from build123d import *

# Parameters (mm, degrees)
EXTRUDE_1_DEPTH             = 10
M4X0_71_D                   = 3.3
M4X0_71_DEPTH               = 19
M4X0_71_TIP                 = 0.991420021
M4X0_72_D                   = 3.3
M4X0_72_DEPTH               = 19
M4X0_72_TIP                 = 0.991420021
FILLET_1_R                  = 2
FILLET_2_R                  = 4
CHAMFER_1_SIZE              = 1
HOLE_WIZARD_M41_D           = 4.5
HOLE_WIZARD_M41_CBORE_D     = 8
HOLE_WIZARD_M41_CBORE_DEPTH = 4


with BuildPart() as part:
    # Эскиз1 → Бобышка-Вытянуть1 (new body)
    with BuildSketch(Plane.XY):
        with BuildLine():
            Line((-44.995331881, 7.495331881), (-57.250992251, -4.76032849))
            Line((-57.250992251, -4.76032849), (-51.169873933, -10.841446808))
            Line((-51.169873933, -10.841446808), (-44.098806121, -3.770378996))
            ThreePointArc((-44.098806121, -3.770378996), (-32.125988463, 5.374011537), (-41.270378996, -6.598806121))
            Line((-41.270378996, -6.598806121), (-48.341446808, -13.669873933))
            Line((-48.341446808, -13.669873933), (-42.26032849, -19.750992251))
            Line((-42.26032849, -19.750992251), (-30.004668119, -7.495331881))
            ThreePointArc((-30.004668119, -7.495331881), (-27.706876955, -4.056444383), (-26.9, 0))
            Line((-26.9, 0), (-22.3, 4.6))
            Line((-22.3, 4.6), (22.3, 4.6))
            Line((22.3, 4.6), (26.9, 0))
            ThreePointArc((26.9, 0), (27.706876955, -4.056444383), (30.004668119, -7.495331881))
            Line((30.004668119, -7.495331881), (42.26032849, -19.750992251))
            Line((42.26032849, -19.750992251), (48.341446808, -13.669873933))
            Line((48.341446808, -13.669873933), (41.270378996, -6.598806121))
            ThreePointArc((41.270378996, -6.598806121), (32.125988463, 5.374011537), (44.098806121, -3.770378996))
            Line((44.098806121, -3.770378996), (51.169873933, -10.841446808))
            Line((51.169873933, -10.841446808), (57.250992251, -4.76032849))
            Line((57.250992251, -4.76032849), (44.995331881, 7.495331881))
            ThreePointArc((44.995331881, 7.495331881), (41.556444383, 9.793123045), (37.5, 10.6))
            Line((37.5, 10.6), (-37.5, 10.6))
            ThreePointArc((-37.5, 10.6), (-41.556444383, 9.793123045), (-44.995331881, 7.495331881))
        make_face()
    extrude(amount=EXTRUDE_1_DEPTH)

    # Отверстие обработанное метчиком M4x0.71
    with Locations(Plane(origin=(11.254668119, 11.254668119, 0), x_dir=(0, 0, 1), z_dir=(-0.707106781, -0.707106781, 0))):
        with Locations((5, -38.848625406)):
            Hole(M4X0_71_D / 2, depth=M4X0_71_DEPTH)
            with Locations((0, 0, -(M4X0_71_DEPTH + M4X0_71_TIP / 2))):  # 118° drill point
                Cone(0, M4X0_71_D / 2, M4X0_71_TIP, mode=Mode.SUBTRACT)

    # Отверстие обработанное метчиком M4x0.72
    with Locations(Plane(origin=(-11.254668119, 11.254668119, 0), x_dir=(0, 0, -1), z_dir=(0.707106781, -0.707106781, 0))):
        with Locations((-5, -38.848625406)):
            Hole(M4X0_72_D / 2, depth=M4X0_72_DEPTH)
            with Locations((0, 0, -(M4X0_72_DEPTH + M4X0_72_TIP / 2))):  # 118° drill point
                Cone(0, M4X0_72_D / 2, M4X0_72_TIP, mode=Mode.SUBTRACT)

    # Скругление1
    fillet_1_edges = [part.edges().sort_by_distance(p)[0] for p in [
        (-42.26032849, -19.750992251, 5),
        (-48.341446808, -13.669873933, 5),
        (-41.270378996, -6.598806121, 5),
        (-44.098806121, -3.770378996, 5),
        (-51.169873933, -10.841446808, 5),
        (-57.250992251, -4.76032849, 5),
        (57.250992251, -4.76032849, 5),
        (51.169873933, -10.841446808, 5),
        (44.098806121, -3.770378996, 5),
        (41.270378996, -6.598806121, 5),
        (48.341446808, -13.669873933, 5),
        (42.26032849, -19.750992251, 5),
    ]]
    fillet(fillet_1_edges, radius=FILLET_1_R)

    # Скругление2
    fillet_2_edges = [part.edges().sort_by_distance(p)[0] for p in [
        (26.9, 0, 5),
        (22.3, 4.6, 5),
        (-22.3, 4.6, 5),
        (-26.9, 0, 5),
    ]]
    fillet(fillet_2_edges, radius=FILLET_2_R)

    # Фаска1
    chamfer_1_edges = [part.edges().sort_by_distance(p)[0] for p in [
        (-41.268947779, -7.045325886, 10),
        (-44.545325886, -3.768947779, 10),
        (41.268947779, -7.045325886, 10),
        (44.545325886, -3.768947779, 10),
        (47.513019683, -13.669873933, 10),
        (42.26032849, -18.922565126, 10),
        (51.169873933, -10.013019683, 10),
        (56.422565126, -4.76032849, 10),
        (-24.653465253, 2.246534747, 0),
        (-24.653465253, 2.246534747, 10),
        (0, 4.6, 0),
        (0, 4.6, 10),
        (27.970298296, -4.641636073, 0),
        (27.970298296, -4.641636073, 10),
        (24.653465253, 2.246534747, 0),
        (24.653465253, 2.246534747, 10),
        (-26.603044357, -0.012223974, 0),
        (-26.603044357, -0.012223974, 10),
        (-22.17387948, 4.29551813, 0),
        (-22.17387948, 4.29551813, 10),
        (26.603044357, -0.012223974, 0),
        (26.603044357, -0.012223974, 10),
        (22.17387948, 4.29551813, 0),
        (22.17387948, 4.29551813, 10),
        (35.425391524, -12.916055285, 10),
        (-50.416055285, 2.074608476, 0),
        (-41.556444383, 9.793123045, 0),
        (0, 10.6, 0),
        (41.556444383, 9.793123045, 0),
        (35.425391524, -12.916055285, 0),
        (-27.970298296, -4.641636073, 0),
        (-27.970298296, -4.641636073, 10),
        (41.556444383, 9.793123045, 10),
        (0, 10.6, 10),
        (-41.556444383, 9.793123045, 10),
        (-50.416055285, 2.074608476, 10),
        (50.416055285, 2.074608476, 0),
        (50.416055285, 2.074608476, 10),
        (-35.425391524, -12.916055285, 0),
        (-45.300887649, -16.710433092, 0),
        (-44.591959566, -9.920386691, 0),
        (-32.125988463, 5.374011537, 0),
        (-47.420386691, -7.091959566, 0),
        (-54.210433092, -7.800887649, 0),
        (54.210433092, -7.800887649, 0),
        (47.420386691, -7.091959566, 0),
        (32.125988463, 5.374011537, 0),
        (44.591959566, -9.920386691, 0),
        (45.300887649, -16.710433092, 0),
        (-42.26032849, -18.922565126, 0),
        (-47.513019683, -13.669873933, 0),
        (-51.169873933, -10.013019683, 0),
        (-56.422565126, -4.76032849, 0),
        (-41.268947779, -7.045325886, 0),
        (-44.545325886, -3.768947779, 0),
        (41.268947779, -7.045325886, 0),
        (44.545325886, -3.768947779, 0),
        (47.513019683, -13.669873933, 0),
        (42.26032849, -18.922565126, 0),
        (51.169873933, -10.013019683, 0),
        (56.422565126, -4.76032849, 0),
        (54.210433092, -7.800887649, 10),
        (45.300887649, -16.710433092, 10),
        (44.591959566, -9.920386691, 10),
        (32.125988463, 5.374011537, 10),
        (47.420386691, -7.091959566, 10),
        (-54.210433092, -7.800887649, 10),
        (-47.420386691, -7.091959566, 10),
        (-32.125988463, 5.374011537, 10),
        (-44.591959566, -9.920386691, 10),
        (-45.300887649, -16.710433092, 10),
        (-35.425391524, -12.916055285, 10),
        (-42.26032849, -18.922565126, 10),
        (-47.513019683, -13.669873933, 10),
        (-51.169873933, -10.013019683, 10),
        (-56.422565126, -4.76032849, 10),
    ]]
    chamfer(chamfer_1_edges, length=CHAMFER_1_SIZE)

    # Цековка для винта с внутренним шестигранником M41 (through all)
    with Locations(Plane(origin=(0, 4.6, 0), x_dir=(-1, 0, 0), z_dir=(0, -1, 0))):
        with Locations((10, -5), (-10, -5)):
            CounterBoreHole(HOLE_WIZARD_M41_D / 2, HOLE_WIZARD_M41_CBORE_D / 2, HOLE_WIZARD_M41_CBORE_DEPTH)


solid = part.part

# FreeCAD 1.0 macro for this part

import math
import FreeCAD as App
import Part
import Sketcher
Q = App.Units.Quantity


def edges_at(feature, points):
    """Names of the edges that pass closest to the given points."""
    edges = feature.Shape.Edges
    near = lambda p: min(range(len(edges)), key=lambda i: edges[i].distToShape(Part.Vertex(*p))[0])
    return sorted({f"Edge{near(p) + 1}" for p in points})

doc = App.newDocument("Part")
body = doc.addObject("PartDesign::Body", "Body")

# Sketch on XY plane
sketch1 = doc.addObject("Sketcher::SketchObject", "Sketch")
body.addObject(sketch1)
sketch1.AttachmentSupport = (doc.XY_Plane, [""])
sketch1.MapMode = "FlatFace"
sketch1.addGeometry([
    Part.LineSegment(App.Vector(-45, 7.5, 0), App.Vector(-57.3, -4.8, 0)),  # 0
    Part.LineSegment(App.Vector(-57.3, -4.8, 0), App.Vector(-51.2, -10.8, 0)),  # 1
    Part.LineSegment(App.Vector(-51.2, -10.8, 0), App.Vector(-44.1, -3.8, 0)),  # 2
    Part.ArcOfCircle(Part.Circle(App.Vector(-37.5, 0, 0), App.Vector(0, 0, 1), 7.6), math.radians(-120), math.radians(210)),  # 3
    Part.LineSegment(App.Vector(-41.3, -6.6, 0), App.Vector(-48.3, -13.7, 0)),  # 4
    Part.LineSegment(App.Vector(-48.3, -13.7, 0), App.Vector(-42.3, -19.8, 0)),  # 5
    Part.LineSegment(App.Vector(-42.3, -19.8, 0), App.Vector(-30, -7.5, 0)),  # 6
    Part.ArcOfCircle(Part.Circle(App.Vector(-37.5, 0, 0), App.Vector(0, 0, 1), 10.6), math.radians(-45), math.radians(0)),  # 7
    Part.LineSegment(App.Vector(-26.9, 0, 0), App.Vector(-22.3, 4.6, 0)),  # 8
    Part.LineSegment(App.Vector(-22.3, 4.6, 0), App.Vector(22.3, 4.6, 0)),  # 9
    Part.LineSegment(App.Vector(22.3, 4.6, 0), App.Vector(26.9, 0, 0)),  # 10
    Part.ArcOfCircle(Part.Circle(App.Vector(37.5, 0, 0), App.Vector(0, 0, 1), 10.6), math.radians(180), math.radians(225)),  # 11
    Part.LineSegment(App.Vector(30, -7.5, 0), App.Vector(42.3, -19.8, 0)),  # 12
    Part.LineSegment(App.Vector(42.3, -19.8, 0), App.Vector(48.3, -13.7, 0)),  # 13
    Part.LineSegment(App.Vector(48.3, -13.7, 0), App.Vector(41.3, -6.6, 0)),  # 14
    Part.ArcOfCircle(Part.Circle(App.Vector(37.5, 0, 0), App.Vector(0, 0, 1), 7.6), math.radians(-30), math.radians(300)),  # 15
    Part.LineSegment(App.Vector(44.1, -3.8, 0), App.Vector(51.2, -10.8, 0)),  # 16
    Part.LineSegment(App.Vector(51.2, -10.8, 0), App.Vector(57.3, -4.8, 0)),  # 17
    Part.LineSegment(App.Vector(57.3, -4.8, 0), App.Vector(45, 7.5, 0)),  # 18
    Part.ArcOfCircle(Part.Circle(App.Vector(37.5, 0, 0), App.Vector(0, 0, 1), 10.6), math.radians(45), math.radians(90)),  # 19
    Part.LineSegment(App.Vector(37.5, 10.6, 0), App.Vector(-37.5, 10.6, 0)),  # 20
    Part.ArcOfCircle(Part.Circle(App.Vector(-37.5, 0, 0), App.Vector(0, 0, 1), 10.6), math.radians(90), math.radians(135)),  # 21
], False)
sketch1.addConstraint([
    Sketcher.Constraint("Coincident", 0, 2, 1, 1),
    Sketcher.Constraint("Coincident", 1, 2, 2, 1),
    Sketcher.Constraint("Coincident", 2, 2, 3, 2),
    Sketcher.Constraint("Coincident", 3, 1, 4, 1),
    Sketcher.Constraint("Coincident", 4, 2, 5, 1),
    Sketcher.Constraint("Coincident", 5, 2, 6, 1),
    Sketcher.Constraint("Tangent", 6, 2, 7, 1),
    Sketcher.Constraint("Coincident", 7, 2, 8, 1),
    Sketcher.Constraint("Coincident", 8, 2, 9, 1),
    Sketcher.Constraint("Coincident", 9, 2, 10, 1),
    Sketcher.Constraint("Coincident", 10, 2, 11, 1),
    Sketcher.Constraint("Tangent", 11, 2, 12, 1),
    Sketcher.Constraint("Coincident", 12, 2, 13, 1),
    Sketcher.Constraint("Coincident", 13, 2, 14, 1),
    Sketcher.Constraint("Coincident", 14, 2, 15, 2),
    Sketcher.Constraint("Coincident", 15, 1, 16, 1),
    Sketcher.Constraint("Coincident", 16, 2, 17, 1),
    Sketcher.Constraint("Coincident", 17, 2, 18, 1),
    Sketcher.Constraint("Tangent", 18, 2, 19, 1),
    Sketcher.Constraint("Tangent", 19, 2, 20, 1),
    Sketcher.Constraint("Tangent", 20, 2, 21, 1),
    Sketcher.Constraint("Tangent", 21, 2, 0, 1),
    Sketcher.Constraint("Horizontal", 9),
    Sketcher.Constraint("Horizontal", 20),
    Sketcher.Constraint("Coincident", 7, 3, 3, 3),
    Sketcher.Constraint("Coincident", 15, 3, 11, 3),
    Sketcher.Constraint("Coincident", 19, 3, 11, 3),
    Sketcher.Constraint("Coincident", 21, 3, 3, 3),
    Sketcher.Constraint("Equal", 7, 11),
    Sketcher.Constraint("Equal", 3, 15),
    Sketcher.Constraint("Equal", 11, 19),
    Sketcher.Constraint("Equal", 19, 21),
    Sketcher.Constraint("Symmetric", 3, 3, 11, 3, -1, 1),
    Sketcher.Constraint("Symmetric", 5, 2, 12, 2, -2),
    Sketcher.Constraint("Symmetric", 4, 2, 13, 2, -2),
    Sketcher.Constraint("Symmetric", 1, 2, 16, 2, -2),
    Sketcher.Constraint("Symmetric", 0, 2, 17, 2, -2),
    Sketcher.Constraint("PointOnObject", 7, 2, -1),
    Sketcher.Constraint("PointOnObject", 10, 2, -1),
    Sketcher.Constraint("Perpendicular", 0, 1),
    Sketcher.Constraint("Perpendicular", 1, 2),
    Sketcher.Constraint("Parallel", 2, 4),
    Sketcher.Constraint("Perpendicular", 4, 5),
    Sketcher.Constraint("Perpendicular", 5, 6),
    Sketcher.Constraint("Parallel", 6, 8),
    Sketcher.Constraint("Perpendicular", 8, 10),
    Sketcher.Constraint("Parallel", 10, 12),
    Sketcher.Constraint("Perpendicular", 13, 14),
    Sketcher.Constraint("Parallel", 14, 16),
    Sketcher.Constraint("Equal", 2, 4),
    Sketcher.Constraint("Equal", 1, 5),
    Sketcher.Constraint("Radius", 3, Q("7.6 mm")),
    Sketcher.Constraint("Radius", 7, Q("10.6 mm")),
    Sketcher.Constraint("DistanceX", 20, 2, 20, 1, Q("75 mm")),
    Sketcher.Constraint("Distance", 2, Q("10 mm")),
    Sketcher.Constraint("DistanceX", 9, 1, 9, 2, Q("44.6 mm")),
    Sketcher.Constraint("Distance", 1, Q("8.6 mm")),
])
pad1 = doc.addObject("PartDesign::Pad", "Pad")
body.addObject(pad1)
pad1.Profile = sketch1
pad1.Length = 10

# Sketch on an angled plane
sketch2 = doc.addObject("Sketcher::SketchObject", "Sketch001")
body.addObject(sketch2)
sketch2.Placement = App.Placement(App.Vector(11.254668, 11.254668, 0), App.Rotation(App.Vector(0, 0, 1), App.Vector(-0.707106781, 0.707106781, 0), App.Vector(-0.707106781, -0.707106781, 0), "ZXY"))
sketch2.addGeometry(Part.Circle(App.Vector(5, -38.8, 0), App.Vector(0, 0, 1), 1.6), False)
sketch2.addConstraint([
    Sketcher.Constraint("Diameter", 0, Q("3.3 mm")),
    Sketcher.Constraint("DistanceX", -1, 1, 0, 3, Q("5 mm")),
    Sketcher.Constraint("DistanceY", 0, 3, -1, 1, Q("38.848625 mm")),
])
doc.recompute()
hole = doc.addObject("PartDesign::Hole", "Hole")
body.addObject(hole)
hole.Profile = sketch2
hole.ThreadType = "None"
hole.Diameter = 3.3
hole.DepthType = "Dimension"
hole.Depth = 19
hole.DrillPoint = "Angled"
hole.DrillPointAngle = 118

# Sketch on an angled plane
sketch3 = doc.addObject("Sketcher::SketchObject", "Sketch002")
body.addObject(sketch3)
sketch3.Placement = App.Placement(App.Vector(-11.254668, 11.254668, 0), App.Rotation(App.Vector(0, 0, -1), App.Vector(0.707106781, 0.707106781, 0), App.Vector(0.707106781, -0.707106781, 0), "ZXY"))
sketch3.addGeometry(Part.Circle(App.Vector(-5, -38.8, 0), App.Vector(0, 0, 1), 1.6), False)
sketch3.addConstraint([
    Sketcher.Constraint("Diameter", 0, Q("3.3 mm")),
    Sketcher.Constraint("DistanceX", 0, 3, -1, 1, Q("5 mm")),
    Sketcher.Constraint("DistanceY", 0, 3, -1, 1, Q("38.848625 mm")),
])
doc.recompute()
hole2 = doc.addObject("PartDesign::Hole", "Hole001")
body.addObject(hole2)
hole2.Profile = sketch3
hole2.ThreadType = "None"
hole2.Diameter = 3.3
hole2.DepthType = "Dimension"
hole2.Depth = 19
hole2.DrillPoint = "Angled"
hole2.DrillPointAngle = 118
doc.recompute()

fillet = doc.addObject("PartDesign::Fillet", "Fillet")
body.addObject(fillet)
fillet.Base = (hole2, edges_at(hole2, [
    (-42.26, -19.751, 5),
    (-48.341, -13.67, 5),
    (-41.27, -6.599, 5),
    (-44.099, -3.77, 5),
    (-51.17, -10.841, 5),
    (-57.251, -4.76, 5),
    (57.251, -4.76, 5),
    (51.17, -10.841, 5),
    (44.099, -3.77, 5),
    (41.27, -6.599, 5),
    (48.341, -13.67, 5),
    (42.26, -19.751, 5),
]))
fillet.Radius = 2
doc.recompute()

fillet2 = doc.addObject("PartDesign::Fillet", "Fillet001")
body.addObject(fillet2)
fillet2.Base = (fillet, edges_at(fillet, [
    (26.9, 0, 5),
    (22.3, 4.6, 5),
    (-22.3, 4.6, 5),
    (-26.9, 0, 5),
]))
fillet2.Radius = 4
doc.recompute()

chamfer = doc.addObject("PartDesign::Chamfer", "Chamfer")
body.addObject(chamfer)
chamfer.Base = (fillet2, edges_at(fillet2, [
    (-41.269, -7.045, 10),
    (-44.545, -3.769, 10),
    (41.269, -7.045, 10),
    (44.545, -3.769, 10),
    (47.513, -13.67, 10),
    (42.26, -18.923, 10),
    (51.17, -10.013, 10),
    (56.423, -4.76, 10),
    (-24.653, 2.247, 0),
    (-24.653, 2.247, 10),
    (0, 4.6, 0),
    (0, 4.6, 10),
    (27.97, -4.642, 0),
    (27.97, -4.642, 10),
    (24.653, 2.247, 0),
    (24.653, 2.247, 10),
    (-26.603, -0.012, 0),
    (-26.603, -0.012, 10),
    (-22.174, 4.296, 0),
    (-22.174, 4.296, 10),
    (26.603, -0.012, 0),
    (26.603, -0.012, 10),
    (22.174, 4.296, 0),
    (22.174, 4.296, 10),
    (35.425, -12.916, 10),
    (-50.416, 2.075, 0),
    (-41.556, 9.793, 0),
    (0, 10.6, 0),
    (41.556, 9.793, 0),
    (35.425, -12.916, 0),
    (-27.97, -4.642, 0),
    (-27.97, -4.642, 10),
    (41.556, 9.793, 10),
    (0, 10.6, 10),
    (-41.556, 9.793, 10),
    (-50.416, 2.075, 10),
    (50.416, 2.075, 0),
    (50.416, 2.075, 10),
    (-35.425, -12.916, 0),
    (-45.301, -16.71, 0),
    (-44.592, -9.92, 0),
    (-32.126, 5.374, 0),
    (-47.42, -7.092, 0),
    (-54.21, -7.801, 0),
    (54.21, -7.801, 0),
    (47.42, -7.092, 0),
    (32.126, 5.374, 0),
    (44.592, -9.92, 0),
    (45.301, -16.71, 0),
    (-42.26, -18.923, 0),
    (-47.513, -13.67, 0),
    (-51.17, -10.013, 0),
    (-56.423, -4.76, 0),
    (-41.269, -7.045, 0),
    (-44.545, -3.769, 0),
    (41.269, -7.045, 0),
    (44.545, -3.769, 0),
    (47.513, -13.67, 0),
    (42.26, -18.923, 0),
    (51.17, -10.013, 0),
    (56.423, -4.76, 0),
    (54.21, -7.801, 10),
    (45.301, -16.71, 10),
    (44.592, -9.92, 10),
    (32.126, 5.374, 10),
    (47.42, -7.092, 10),
    (-54.21, -7.801, 10),
    (-47.42, -7.092, 10),
    (-32.126, 5.374, 10),
    (-44.592, -9.92, 10),
    (-45.301, -16.71, 10),
    (-35.425, -12.916, 10),
    (-42.26, -18.923, 10),
    (-47.513, -13.67, 10),
    (-51.17, -10.013, 10),
    (-56.423, -4.76, 10),
]))
chamfer.Size = 1

# Sketch on XZ plane
sketch4 = doc.addObject("Sketcher::SketchObject", "Sketch003")
body.addObject(sketch4)
sketch4.AttachmentSupport = (doc.XZ_Plane, [""])
sketch4.MapMode = "FlatFace"
sketch4.AttachmentOffset = App.Placement(App.Vector(0, 0, -4.6), App.Rotation())
sketch4.addGeometry([
    Part.Circle(App.Vector(-10, 5, 0), App.Vector(0, 0, 1), 2.2),
    Part.Circle(App.Vector(10, 5, 0), App.Vector(0, 0, 1), 2.2),
], False)
sketch4.addConstraint([
    Sketcher.Constraint("Equal", 0, 1),
    Sketcher.Constraint("Symmetric", 0, 3, 1, 3, -2),
    Sketcher.Constraint("Diameter", 0, Q("4.5 mm")),
    Sketcher.Constraint("DistanceX", 0, 3, -1, 1, Q("10 mm")),
    Sketcher.Constraint("DistanceY", -1, 1, 0, 3, Q("5 mm")),
])
doc.recompute()
hole3 = doc.addObject("PartDesign::Hole", "Hole002")
body.addObject(hole3)
hole3.Profile = sketch4
hole3.ThreadType = "None"
hole3.Diameter = 4.5
hole3.DepthType = "ThroughAll"
hole3.HoleCutType = "Counterbore"
hole3.HoleCutDiameter = 8
hole3.HoleCutDepth = 4

doc.recompute()
